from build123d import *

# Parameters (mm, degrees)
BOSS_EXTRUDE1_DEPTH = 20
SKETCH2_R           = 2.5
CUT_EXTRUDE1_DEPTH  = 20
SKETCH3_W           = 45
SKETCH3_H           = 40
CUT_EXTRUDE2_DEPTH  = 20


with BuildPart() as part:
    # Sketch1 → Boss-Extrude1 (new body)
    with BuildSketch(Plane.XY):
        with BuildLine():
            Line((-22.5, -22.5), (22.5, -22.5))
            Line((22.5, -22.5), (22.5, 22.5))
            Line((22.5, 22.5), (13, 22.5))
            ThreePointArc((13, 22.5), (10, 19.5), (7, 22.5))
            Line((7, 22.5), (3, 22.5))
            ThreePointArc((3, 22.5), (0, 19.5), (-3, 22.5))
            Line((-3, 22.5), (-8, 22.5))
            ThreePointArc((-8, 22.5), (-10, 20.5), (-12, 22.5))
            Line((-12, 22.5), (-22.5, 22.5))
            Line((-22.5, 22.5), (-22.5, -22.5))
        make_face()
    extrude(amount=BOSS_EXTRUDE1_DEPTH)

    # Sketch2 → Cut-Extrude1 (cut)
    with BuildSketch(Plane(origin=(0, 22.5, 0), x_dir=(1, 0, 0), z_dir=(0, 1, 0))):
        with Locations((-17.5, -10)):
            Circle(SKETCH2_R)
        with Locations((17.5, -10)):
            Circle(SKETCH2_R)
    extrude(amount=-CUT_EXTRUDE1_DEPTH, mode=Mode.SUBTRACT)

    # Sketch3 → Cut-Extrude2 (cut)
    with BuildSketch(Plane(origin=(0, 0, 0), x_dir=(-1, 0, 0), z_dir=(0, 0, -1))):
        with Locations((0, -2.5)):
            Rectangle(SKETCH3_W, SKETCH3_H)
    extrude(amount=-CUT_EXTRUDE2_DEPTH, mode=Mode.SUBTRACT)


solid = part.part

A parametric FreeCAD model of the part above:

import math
import FreeCAD as App
import Part
import Sketcher
from FreeCAD import Vector
Q = App.Units.Quantity


def add_polygon(sketch, points):
    """Adds a closed chain of lines whose ends are joined by coincident constraints."""
    first, n = sketch.GeometryCount, len(points)
    for a, b in zip(points, points[1:] + points[:1]):
        sketch.addGeometry(Part.LineSegment(App.Vector(*a, 0), App.Vector(*b, 0)), False)
    for i in range(n):
        sketch.addConstraint(Sketcher.Constraint("Coincident", first + i, 2, first + (i + 1) % n, 1))

doc = App.newDocument("Part")
params = doc.addObject("Spreadsheet::Sheet", "Params")
for row, (alias, value) in enumerate([
    ("sketch1_radius", "3 mm"),
    ("sketch1_radius2", "2 mm"),
    ("sketch1_width", "45 mm"),
    ("sketch1_width2", "4 mm"),
    ("pad1_length", "20 mm"),
    ("sketch2_diameter", "5 mm"),
    ("pocket1_length", "20 mm"),
    ("sketch3_width", "45 mm"),
    ("sketch3_height", "40 mm"),
    ("pocket2_length", "20 mm"),
], start=1):
    params.set(f"A{row}", alias)
    params.set(f"B{row}", "=" + value)
    params.setAlias(f"B{row}", alias)

body = doc.addObject("PartDesign::Body", "Body")

sketch1 = body.newObject("Sketcher::SketchObject", "Sketch")
sketch1.AttachmentSupport = (doc.getObject("XY_Plane"), [""])
sketch1.MapMode = "FlatFace"
sketch1.addGeometry([
    Part.LineSegment(Vector(-22.5, -22.5, 0), Vector(22.5, -22.5, 0)),
    Part.LineSegment(Vector(22.5, -22.5, 0), Vector(22.5, 22.5, 0)),
    Part.LineSegment(Vector(22.5, 22.5, 0), Vector(13, 22.5, 0)),
    Part.ArcOfCircle(Part.Circle(Vector(10, 22.5, 0), Vector(0, 0, 1), 3), math.radians(180), math.radians(360)),
    Part.LineSegment(Vector(7, 22.5, 0), Vector(3, 22.5, 0)),
    Part.ArcOfCircle(Part.Circle(Vector(0, 22.5, 0), Vector(0, 0, 1), 3), math.radians(180), math.radians(360)),
    Part.LineSegment(Vector(-3, 22.5, 0), Vector(-8, 22.5, 0)),
    Part.ArcOfCircle(Part.Circle(Vector(-10, 22.5, 0), Vector(0, 0, 1), 2), math.radians(180), math.radians(360)),
    Part.LineSegment(Vector(-12, 22.5, 0), Vector(-22.5, 22.5, 0)),
    Part.LineSegment(Vector(-22.5, 22.5, 0), Vector(-22.5, -22.5, 0)),
], False)
sketch1.addConstraint([
    Sketcher.Constraint("Coincident", 0, 2, 1, 1),
    Sketcher.Constraint("Coincident", 1, 2, 2, 1),
    Sketcher.Constraint("Coincident", 2, 2, 3, 2),
    Sketcher.Constraint("Coincident", 3, 1, 4, 1),
    Sketcher.Constraint("Coincident", 4, 2, 5, 2),
    Sketcher.Constraint("Coincident", 5, 1, 6, 1),
    Sketcher.Constraint("Coincident", 6, 2, 7, 2),
    Sketcher.Constraint("Coincident", 7, 1, 8, 1),
    Sketcher.Constraint("Coincident", 8, 2, 9, 1),
    Sketcher.Constraint("Coincident", 9, 2, 0, 1),
    Sketcher.Constraint("Horizontal", 0),
    Sketcher.Constraint("Vertical", 1),
    Sketcher.Constraint("Horizontal", 2),
    Sketcher.Constraint("Horizontal", 4),
    Sketcher.Constraint("Horizontal", 6),
    Sketcher.Constraint("Horizontal", 8),
    Sketcher.Constraint("Vertical", 9),
    Sketcher.Constraint("Equal", 3, 5),
    Sketcher.Constraint("Symmetric", 0, 2, 8, 2, -1, 1),
    Sketcher.Constraint("Symmetric", 3, 3, 7, 3, -2),
    Sketcher.Constraint("Symmetric", 4, 2, 5, 1, -2),
    Sketcher.Constraint("Horizontal", 3, 3, 5, 3),
    Sketcher.Constraint("Horizontal", 7, 3, 1, 2),
    Sketcher.Constraint("Horizontal", 2, 2, 3, 1),
    Sketcher.Constraint("Horizontal", 6, 2, 7, 1),
    Sketcher.Constraint("Equal", 0, 1),
    Sketcher.Constraint("Radius", 3, Q("3 mm")),
    Sketcher.Constraint("Radius", 7, Q("2 mm")),
    Sketcher.Constraint("DistanceX", 0, 1, 0, 2, Q("45 mm")),
    Sketcher.Constraint("DistanceX", 4, 2, 4, 1, Q("4 mm")),
])
sketch1.setExpression("Constraints[26]", "Params.sketch1_radius")
sketch1.setExpression("Constraints[27]", "Params.sketch1_radius2")
sketch1.setExpression("Constraints[28]", "Params.sketch1_width")
sketch1.setExpression("Constraints[29]", "Params.sketch1_width2")
pad1 = body.newObject("PartDesign::Pad", "Pad")
pad1.Profile = sketch1
pad1.setExpression("Length", "Params.pad1_length")

sketch2 = body.newObject("Sketcher::SketchObject", "Sketch001")
sketch2.AttachmentSupport = (doc.getObject("XZ_Plane"), [""])
sketch2.MapMode = "FlatFace"
sketch2.AttachmentOffset = App.Placement(Vector(0, 0, -22.5), App.Rotation())
sketch2.addGeometry([
    Part.Circle(Vector(-17.5, 10, 0), Vector(0, 0, 1), 2.5),
    Part.Circle(Vector(17.5, 10, 0), Vector(0, 0, 1), 2.5),
], False)
sketch2.addConstraint([
    Sketcher.Constraint("Equal", 0, 1),
    Sketcher.Constraint("Symmetric", 0, 3, 1, 3, -2),
    Sketcher.Constraint("Diameter", 0, Q("5 mm")),
    Sketcher.Constraint("DistanceY", -1, 1, 0, 3, Q("10 mm")),
    Sketcher.Constraint("DistanceX", 0, 3, 1, 3, Q("35 mm")),
])
sketch2.setExpression("Constraints[2]", "Params.sketch2_diameter")
pocket1 = body.newObject("PartDesign::Pocket", "Pocket")
pocket1.Profile = sketch2
pocket1.setExpression("Length", "Params.pocket1_length")
pocket1.Reversed = True

sketch3 = body.newObject("Sketcher::SketchObject", "Sketch002")
sketch3.AttachmentSupport = (doc.getObject("XY_Plane"), [""])
sketch3.MapMode = "FlatFace"
add_polygon(sketch3, [(22, 18), (22, -22), (-22, -22), (-22, 18)])
sketch3.addConstraint([
    Sketcher.Constraint("Vertical", 0),
    Sketcher.Constraint("Horizontal", 1),
    Sketcher.Constraint("Vertical", 2),
    Sketcher.Constraint("Horizontal", 3),
    Sketcher.Constraint("DistanceX", 1, 2, 1, 1, Q("45 mm")),
    Sketcher.Constraint("DistanceY", 0, 2, 0, 1, Q("40 mm")),
    Sketcher.Constraint("DistanceX", -1, 1, 0, 2, Q("22.5 mm")),
    Sketcher.Constraint("DistanceY", 0, 2, -1, 1, Q("22.5 mm")),
])
sketch3.setExpression("Constraints[8]", "Params.sketch3_width")
sketch3.setExpression("Constraints[9]", "Params.sketch3_height")
pocket2 = body.newObject("PartDesign::Pocket", "Pocket001")
pocket2.Profile = sketch3
pocket2.setExpression("Length", "Params.pocket2_length")
pocket2.Reversed = True

doc.recompute()
